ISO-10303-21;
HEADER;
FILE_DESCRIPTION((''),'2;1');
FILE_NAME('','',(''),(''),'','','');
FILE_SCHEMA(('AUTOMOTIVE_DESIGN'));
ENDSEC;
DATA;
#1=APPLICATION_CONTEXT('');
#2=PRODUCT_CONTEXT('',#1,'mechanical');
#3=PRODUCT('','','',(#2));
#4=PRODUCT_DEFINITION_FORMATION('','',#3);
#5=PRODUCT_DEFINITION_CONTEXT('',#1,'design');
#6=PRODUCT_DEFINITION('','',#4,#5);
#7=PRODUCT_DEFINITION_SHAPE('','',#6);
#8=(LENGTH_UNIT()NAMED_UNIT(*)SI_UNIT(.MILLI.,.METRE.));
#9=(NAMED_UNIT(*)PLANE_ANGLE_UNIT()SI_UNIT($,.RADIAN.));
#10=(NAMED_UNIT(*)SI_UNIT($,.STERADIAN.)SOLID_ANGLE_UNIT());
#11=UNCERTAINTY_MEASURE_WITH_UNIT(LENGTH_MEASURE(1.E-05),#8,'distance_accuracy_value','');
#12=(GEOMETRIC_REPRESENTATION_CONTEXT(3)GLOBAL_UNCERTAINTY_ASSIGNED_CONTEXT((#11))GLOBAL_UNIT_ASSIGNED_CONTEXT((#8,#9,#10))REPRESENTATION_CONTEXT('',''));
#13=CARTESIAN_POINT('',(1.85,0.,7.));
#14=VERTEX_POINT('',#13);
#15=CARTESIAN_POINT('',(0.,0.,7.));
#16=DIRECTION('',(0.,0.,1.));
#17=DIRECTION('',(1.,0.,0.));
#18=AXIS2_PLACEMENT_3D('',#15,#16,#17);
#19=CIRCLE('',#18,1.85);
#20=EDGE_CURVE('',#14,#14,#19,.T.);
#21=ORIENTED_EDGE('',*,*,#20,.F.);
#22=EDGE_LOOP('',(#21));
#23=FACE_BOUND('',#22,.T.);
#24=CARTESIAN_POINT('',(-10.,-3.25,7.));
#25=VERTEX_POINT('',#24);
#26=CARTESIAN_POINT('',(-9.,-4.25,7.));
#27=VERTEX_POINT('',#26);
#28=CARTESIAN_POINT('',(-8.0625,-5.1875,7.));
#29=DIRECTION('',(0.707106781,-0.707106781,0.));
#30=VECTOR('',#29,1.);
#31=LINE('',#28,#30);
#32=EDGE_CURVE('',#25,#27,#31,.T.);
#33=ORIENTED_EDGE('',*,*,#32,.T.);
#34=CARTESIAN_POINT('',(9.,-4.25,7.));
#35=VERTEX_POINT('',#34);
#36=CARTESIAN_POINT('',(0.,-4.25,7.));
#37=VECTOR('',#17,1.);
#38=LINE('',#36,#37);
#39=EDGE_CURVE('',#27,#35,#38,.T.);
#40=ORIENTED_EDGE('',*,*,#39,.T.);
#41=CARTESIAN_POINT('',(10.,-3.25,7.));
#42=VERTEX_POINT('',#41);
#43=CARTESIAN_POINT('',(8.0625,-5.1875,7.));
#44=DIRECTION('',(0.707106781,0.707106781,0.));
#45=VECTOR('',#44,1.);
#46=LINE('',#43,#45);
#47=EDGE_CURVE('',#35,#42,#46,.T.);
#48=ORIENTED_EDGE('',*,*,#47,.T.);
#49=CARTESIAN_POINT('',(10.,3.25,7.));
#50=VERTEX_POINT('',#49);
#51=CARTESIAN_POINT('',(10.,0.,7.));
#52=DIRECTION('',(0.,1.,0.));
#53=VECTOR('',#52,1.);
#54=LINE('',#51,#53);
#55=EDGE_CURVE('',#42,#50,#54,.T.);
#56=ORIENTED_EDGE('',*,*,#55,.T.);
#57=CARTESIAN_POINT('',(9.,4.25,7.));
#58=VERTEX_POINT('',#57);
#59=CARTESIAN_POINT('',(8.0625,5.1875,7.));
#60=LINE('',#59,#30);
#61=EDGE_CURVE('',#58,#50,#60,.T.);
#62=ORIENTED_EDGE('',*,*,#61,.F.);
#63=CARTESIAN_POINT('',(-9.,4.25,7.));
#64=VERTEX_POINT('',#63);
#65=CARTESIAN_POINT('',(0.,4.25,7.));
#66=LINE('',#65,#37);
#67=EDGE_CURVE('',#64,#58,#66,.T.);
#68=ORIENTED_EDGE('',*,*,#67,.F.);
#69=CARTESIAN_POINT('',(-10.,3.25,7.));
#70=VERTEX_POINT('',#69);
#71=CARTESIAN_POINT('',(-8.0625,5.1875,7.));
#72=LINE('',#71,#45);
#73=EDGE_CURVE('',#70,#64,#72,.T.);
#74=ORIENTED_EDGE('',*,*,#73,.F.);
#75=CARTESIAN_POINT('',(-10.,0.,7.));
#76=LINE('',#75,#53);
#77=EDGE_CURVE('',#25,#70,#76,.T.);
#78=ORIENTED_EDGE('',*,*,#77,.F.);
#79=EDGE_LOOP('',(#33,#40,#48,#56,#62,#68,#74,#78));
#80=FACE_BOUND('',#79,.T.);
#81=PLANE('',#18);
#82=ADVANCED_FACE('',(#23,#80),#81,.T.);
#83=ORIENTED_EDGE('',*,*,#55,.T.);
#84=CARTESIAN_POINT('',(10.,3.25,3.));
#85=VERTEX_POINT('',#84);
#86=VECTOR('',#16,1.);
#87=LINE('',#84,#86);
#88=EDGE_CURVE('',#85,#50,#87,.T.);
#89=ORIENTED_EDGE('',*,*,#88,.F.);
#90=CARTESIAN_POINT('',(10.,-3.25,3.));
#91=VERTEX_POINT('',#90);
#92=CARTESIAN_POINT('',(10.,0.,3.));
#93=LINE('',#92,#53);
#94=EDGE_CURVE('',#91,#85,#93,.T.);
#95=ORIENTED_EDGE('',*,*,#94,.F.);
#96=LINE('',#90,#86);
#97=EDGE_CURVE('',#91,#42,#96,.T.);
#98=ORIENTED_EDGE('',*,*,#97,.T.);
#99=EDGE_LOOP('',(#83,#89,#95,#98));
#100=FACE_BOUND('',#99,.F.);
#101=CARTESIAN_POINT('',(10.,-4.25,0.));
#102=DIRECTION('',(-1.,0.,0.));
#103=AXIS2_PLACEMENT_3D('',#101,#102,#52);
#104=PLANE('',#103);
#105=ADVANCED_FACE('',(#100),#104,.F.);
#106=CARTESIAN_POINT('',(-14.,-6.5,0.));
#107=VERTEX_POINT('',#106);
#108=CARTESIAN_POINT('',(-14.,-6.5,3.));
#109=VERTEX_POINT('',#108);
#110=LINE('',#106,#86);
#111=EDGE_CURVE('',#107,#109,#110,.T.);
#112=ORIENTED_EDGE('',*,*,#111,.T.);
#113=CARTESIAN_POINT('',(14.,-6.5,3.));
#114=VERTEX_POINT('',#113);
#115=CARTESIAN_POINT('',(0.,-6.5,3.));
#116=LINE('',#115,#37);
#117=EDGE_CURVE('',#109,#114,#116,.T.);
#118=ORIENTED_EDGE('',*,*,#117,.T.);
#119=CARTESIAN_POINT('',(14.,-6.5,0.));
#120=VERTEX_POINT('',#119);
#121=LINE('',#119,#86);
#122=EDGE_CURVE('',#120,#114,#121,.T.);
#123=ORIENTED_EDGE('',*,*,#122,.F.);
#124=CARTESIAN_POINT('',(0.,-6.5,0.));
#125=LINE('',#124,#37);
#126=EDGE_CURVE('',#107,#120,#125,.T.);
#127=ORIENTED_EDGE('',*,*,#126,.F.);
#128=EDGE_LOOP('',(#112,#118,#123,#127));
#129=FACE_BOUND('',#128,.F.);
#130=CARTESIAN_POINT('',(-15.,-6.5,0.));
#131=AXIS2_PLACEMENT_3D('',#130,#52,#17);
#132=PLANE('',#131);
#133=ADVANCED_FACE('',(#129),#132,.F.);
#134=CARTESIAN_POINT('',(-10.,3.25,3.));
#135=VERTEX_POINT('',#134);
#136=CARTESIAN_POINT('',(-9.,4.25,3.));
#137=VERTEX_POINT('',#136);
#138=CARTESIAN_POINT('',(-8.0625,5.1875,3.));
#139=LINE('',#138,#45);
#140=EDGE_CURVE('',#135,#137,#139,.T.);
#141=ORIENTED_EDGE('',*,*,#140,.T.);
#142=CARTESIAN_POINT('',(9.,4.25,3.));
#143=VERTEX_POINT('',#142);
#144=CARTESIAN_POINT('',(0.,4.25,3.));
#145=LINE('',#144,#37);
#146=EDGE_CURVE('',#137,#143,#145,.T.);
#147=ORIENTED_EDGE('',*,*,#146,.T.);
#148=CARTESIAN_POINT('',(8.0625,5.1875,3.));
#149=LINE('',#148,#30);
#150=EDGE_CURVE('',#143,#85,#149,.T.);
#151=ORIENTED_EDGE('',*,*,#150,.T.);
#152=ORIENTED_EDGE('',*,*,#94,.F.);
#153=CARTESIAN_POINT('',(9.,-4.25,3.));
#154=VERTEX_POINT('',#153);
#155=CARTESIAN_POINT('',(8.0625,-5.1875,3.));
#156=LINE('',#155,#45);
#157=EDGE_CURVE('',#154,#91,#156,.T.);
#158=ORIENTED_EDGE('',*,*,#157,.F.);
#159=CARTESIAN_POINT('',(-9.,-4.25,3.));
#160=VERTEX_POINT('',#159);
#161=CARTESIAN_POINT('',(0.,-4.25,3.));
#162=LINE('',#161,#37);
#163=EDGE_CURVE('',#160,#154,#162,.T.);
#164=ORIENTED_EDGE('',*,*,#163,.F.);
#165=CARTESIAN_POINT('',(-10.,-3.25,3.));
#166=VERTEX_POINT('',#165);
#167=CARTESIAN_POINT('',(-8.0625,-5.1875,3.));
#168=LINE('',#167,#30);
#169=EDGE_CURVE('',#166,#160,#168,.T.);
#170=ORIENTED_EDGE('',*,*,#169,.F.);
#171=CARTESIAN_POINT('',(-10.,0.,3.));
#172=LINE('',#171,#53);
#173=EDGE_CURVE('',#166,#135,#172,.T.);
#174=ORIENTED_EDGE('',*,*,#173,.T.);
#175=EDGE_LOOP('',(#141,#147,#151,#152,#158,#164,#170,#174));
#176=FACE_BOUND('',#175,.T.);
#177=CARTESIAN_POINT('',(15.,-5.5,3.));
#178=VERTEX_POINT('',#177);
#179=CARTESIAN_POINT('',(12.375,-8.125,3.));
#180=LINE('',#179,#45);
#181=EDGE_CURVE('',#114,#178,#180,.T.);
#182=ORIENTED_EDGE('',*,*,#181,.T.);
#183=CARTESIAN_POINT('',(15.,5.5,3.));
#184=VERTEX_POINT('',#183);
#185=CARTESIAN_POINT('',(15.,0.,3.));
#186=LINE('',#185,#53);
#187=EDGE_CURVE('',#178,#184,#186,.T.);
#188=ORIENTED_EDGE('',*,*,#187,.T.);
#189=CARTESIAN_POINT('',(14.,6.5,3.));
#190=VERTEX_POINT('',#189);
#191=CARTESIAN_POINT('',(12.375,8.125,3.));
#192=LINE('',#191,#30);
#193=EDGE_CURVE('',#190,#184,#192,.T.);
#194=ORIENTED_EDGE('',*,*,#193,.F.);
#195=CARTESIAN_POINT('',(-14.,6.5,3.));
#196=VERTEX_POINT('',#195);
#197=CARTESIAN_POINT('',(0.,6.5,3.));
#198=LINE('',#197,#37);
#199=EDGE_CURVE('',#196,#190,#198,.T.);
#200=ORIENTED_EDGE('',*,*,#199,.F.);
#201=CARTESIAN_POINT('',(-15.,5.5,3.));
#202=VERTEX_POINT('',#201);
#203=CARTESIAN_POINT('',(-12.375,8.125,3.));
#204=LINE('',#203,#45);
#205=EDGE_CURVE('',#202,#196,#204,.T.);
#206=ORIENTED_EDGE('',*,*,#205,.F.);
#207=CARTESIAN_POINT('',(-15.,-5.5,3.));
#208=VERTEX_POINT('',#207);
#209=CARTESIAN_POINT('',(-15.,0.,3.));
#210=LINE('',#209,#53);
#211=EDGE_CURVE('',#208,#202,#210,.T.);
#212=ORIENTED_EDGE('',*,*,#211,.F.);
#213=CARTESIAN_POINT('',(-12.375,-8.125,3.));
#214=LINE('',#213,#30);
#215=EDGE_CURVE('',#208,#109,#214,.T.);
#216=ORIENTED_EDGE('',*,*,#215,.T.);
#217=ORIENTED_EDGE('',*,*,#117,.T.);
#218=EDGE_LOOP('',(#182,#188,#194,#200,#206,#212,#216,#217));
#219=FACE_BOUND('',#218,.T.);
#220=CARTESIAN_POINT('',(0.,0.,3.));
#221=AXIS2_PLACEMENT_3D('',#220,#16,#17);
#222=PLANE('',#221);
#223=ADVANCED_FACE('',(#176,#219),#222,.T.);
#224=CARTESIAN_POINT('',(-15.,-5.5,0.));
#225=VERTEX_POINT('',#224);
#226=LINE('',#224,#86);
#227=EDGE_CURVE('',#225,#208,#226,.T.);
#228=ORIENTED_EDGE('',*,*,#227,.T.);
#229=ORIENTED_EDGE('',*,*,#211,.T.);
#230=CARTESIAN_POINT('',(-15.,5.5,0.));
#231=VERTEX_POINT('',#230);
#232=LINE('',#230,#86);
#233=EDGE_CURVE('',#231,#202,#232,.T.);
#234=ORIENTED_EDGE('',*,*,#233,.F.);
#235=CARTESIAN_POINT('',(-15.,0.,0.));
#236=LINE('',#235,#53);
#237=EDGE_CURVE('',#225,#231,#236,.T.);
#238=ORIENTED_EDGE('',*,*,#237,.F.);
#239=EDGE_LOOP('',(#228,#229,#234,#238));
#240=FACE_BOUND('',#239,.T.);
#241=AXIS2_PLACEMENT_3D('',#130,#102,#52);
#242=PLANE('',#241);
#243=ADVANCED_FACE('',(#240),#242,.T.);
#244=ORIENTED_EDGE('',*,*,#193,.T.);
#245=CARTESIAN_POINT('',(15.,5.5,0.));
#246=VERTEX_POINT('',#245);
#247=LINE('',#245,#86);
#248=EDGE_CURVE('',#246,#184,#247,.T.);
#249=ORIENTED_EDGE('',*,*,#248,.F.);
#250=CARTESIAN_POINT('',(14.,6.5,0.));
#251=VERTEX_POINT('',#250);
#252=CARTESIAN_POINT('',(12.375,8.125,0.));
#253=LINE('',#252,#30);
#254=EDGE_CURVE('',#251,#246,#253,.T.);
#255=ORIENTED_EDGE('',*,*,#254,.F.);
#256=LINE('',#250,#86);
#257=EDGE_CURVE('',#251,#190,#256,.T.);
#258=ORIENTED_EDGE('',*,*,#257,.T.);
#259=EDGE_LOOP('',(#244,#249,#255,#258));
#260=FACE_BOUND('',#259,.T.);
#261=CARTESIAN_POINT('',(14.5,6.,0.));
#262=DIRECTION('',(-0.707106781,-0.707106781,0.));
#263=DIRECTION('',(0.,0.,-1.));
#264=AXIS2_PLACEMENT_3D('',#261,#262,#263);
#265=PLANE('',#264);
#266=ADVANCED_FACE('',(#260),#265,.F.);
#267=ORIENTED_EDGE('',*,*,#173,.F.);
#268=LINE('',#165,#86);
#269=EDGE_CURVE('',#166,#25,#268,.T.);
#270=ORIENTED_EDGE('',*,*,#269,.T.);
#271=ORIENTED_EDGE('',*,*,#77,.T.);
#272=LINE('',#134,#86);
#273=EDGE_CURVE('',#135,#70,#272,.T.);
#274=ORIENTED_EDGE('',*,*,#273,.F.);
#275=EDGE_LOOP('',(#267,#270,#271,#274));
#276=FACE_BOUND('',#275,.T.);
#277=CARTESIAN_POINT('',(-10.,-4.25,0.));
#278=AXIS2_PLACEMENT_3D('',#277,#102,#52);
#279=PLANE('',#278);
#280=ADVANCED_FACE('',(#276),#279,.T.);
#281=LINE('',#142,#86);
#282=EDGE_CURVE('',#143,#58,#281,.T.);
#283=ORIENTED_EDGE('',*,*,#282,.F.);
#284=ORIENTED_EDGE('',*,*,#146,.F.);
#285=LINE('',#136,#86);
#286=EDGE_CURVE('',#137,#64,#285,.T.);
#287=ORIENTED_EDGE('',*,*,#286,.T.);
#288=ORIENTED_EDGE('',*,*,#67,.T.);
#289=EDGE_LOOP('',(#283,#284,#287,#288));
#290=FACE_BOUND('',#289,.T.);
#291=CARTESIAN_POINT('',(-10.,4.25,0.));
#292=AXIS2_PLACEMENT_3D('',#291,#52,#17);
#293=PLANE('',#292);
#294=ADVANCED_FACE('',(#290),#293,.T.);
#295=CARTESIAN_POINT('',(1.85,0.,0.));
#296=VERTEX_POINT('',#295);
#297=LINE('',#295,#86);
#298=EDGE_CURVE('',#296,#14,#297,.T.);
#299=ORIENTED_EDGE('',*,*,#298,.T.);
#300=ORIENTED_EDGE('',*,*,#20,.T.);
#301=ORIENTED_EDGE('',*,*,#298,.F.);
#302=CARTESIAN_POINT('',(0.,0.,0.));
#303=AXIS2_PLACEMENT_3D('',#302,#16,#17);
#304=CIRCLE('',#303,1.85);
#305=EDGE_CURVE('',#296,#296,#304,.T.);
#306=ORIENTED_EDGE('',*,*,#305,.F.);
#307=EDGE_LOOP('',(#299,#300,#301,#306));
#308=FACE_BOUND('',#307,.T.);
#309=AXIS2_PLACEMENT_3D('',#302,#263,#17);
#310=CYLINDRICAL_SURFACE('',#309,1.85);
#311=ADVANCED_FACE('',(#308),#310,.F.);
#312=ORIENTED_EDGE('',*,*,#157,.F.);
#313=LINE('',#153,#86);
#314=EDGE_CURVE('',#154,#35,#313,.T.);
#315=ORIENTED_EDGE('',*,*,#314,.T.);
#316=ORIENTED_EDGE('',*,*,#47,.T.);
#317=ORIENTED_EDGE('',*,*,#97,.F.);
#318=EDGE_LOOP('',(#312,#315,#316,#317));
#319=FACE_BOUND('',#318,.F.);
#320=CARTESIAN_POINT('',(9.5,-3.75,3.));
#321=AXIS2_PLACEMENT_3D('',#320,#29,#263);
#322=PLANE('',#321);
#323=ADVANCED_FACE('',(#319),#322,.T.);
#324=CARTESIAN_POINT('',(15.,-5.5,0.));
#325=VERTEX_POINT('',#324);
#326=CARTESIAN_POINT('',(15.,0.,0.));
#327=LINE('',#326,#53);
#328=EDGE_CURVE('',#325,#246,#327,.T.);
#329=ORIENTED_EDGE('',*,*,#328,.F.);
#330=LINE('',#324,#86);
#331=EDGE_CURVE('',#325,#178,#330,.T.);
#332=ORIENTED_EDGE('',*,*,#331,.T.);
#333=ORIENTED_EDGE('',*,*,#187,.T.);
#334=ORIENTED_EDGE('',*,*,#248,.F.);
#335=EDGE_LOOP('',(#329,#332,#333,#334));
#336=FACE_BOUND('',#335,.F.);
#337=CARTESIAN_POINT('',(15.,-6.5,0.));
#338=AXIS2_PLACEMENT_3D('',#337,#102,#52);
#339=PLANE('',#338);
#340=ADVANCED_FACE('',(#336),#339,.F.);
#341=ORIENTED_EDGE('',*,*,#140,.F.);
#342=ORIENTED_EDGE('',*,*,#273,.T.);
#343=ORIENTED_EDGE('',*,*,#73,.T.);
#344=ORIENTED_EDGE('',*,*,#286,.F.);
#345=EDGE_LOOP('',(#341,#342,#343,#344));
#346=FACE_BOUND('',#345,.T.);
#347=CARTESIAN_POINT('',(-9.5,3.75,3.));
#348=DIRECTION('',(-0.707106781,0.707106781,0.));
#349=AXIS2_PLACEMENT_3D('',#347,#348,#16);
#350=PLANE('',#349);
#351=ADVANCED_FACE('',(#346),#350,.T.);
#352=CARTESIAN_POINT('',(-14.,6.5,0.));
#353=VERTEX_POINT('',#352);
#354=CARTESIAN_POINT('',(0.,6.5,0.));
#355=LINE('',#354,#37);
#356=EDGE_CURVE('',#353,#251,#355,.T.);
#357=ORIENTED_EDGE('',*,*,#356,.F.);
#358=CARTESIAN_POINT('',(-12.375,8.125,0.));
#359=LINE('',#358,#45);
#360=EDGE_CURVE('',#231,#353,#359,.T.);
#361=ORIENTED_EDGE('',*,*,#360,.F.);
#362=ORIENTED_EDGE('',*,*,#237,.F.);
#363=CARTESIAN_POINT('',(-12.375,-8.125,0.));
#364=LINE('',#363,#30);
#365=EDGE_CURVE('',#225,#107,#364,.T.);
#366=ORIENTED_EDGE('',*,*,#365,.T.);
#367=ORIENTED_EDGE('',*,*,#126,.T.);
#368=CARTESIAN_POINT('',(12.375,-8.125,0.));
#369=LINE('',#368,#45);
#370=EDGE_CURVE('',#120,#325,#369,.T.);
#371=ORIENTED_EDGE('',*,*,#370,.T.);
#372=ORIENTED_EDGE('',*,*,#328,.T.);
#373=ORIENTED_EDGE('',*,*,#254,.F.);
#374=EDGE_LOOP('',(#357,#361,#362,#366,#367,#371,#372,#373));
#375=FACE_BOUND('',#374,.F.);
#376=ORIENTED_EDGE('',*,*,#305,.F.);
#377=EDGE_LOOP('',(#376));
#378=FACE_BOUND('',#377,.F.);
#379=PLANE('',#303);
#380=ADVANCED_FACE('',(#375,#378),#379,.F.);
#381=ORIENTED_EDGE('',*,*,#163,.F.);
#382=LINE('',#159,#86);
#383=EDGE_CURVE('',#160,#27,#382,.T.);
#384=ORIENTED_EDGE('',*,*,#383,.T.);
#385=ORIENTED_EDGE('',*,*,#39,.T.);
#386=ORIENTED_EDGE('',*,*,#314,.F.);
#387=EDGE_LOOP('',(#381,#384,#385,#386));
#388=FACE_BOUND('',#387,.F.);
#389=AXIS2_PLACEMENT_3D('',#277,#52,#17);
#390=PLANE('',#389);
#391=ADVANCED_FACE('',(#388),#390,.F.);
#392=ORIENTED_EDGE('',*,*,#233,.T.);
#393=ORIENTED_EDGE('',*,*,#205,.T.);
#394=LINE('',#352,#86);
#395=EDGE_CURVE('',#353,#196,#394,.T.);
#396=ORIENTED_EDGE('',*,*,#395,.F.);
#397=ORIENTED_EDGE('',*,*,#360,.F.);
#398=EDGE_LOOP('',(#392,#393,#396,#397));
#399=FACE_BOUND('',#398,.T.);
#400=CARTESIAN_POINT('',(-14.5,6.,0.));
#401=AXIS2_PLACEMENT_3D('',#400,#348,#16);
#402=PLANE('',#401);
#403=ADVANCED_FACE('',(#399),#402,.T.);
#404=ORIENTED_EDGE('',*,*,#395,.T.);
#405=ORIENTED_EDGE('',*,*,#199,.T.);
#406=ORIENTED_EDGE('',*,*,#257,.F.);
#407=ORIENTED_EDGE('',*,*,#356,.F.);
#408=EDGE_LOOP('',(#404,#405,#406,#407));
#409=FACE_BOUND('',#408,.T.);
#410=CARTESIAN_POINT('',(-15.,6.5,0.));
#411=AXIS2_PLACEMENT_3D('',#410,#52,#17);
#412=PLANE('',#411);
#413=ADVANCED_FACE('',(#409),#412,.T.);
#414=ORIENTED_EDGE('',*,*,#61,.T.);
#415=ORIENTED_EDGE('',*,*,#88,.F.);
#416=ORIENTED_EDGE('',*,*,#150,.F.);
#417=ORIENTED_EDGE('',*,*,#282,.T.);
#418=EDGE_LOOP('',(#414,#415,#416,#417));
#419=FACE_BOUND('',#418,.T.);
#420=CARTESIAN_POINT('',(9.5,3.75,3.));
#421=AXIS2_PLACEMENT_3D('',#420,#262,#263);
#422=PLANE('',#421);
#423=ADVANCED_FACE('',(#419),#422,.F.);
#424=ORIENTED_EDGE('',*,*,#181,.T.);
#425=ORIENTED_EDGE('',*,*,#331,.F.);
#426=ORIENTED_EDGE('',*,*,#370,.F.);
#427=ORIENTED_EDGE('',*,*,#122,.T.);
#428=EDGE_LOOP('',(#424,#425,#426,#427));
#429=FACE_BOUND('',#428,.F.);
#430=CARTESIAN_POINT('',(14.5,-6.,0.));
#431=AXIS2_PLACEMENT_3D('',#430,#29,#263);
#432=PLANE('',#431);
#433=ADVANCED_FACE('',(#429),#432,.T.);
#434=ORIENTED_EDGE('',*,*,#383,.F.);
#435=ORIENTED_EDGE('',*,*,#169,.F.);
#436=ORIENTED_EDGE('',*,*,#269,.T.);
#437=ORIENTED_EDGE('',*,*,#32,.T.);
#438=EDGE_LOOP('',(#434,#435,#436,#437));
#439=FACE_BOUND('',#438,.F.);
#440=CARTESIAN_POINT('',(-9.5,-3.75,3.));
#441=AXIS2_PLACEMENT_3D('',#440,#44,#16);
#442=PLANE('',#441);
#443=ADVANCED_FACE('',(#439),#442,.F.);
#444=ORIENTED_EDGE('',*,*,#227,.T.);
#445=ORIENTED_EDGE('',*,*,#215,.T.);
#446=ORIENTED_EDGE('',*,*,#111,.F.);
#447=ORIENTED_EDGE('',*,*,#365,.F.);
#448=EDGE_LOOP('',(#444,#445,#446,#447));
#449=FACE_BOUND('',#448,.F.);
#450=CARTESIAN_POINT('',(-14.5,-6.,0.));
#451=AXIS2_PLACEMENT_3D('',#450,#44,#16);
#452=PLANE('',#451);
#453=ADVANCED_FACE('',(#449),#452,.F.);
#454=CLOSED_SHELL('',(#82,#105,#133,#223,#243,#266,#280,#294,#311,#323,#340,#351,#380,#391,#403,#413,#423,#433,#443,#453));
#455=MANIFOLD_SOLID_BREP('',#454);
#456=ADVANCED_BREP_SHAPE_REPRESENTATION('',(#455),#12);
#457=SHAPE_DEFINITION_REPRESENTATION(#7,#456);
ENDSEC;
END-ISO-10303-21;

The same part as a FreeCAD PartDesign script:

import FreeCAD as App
import Part
import Sketcher

V = App.Vector
Q = App.Units.Quantity


def edges_at(feature, points):
    """Names of the edges that pass closest to the given points."""
    edges = feature.Shape.Edges
    near = lambda p: min(range(len(edges)), key=lambda i: edges[i].distToShape(Part.Vertex(*p))[0])
    return sorted({f"Edge{near(p) + 1}" for p in points})


def add_polygon(sketch, points):
    """Adds a closed chain of lines whose ends are joined by coincident constraints."""
    first, n = sketch.GeometryCount, len(points)
    for a, b in zip(points, points[1:] + points[:1]):
        sketch.addGeometry(Part.LineSegment(App.Vector(*a, 0), App.Vector(*b, 0)), False)
    for i in range(n):
        sketch.addConstraint(Sketcher.Constraint("Coincident", first + i, 2, first + (i + 1) % n, 1))

doc = App.newDocument("Part")
params = doc.addObject("Spreadsheet::Sheet", "Params")
for row, (alias, value) in enumerate([
    ("sketch1_width", "30 mm"),
    ("sketch1_width2", "20 mm"),
    ("sketch1_height", "13 mm"),
    ("sketch1_height2", "8.5 mm"),
    ("pad1_length", "3 mm"),
    ("sketch2_diameter", "3.7 mm"),
    ("sketch2_width", "20 mm"),
    ("sketch2_height", "8.5 mm"),
    ("pad2_length", "7 mm"),
    ("chamfer_size", "1 mm"),
], start=1):
    params.set(f"A{row}", alias)
    params.set(f"B{row}", "=" + value)
    params.setAlias(f"B{row}", alias)

body = doc.addObject("PartDesign::Body", "Body")

# Sketch on XY plane
sketch1 = doc.addObject("Sketcher::SketchObject", "Sketch")
body.addObject(sketch1)
sketch1.AttachmentSupport = (doc.XY_Plane, [""])
sketch1.MapMode = "FlatFace"
add_polygon(sketch1, [(-15, 6), (-15, -6), (15, -6), (15, 6)])  # lines 0-3
add_polygon(sketch1, [(10, -4), (-10, -4), (-10, 4), (10, 4)])  # lines 4-7
sketch1.addConstraint([
    Sketcher.Constraint("Vertical", 0),
    Sketcher.Constraint("Horizontal", 1),
    Sketcher.Constraint("Vertical", 2),
    Sketcher.Constraint("Horizontal", 3),
    Sketcher.Constraint("Horizontal", 4),
    Sketcher.Constraint("Vertical", 5),
    Sketcher.Constraint("Horizontal", 6),
    Sketcher.Constraint("Vertical", 7),
    Sketcher.Constraint("Symmetric", 0, 2, 2, 2, -1, 1),
    Sketcher.Constraint("Symmetric", 4, 2, 6, 2, -1, 1),
    Sketcher.Constraint("DistanceX", 1, 1, 1, 2, Q("30 mm")),
    Sketcher.Constraint("DistanceX", 4, 2, 4, 1, Q("20 mm")),
    Sketcher.Constraint("DistanceY", 0, 2, 0, 1, Q("13 mm")),
    Sketcher.Constraint("DistanceY", 5, 1, 5, 2, Q("8.5 mm")),
])
sketch1.setExpression("Constraints[18]", "Params.sketch1_width")
sketch1.setExpression("Constraints[19]", "Params.sketch1_width2")
sketch1.setExpression("Constraints[20]", "Params.sketch1_height")
sketch1.setExpression("Constraints[21]", "Params.sketch1_height2")
pad1 = doc.addObject("PartDesign::Pad", "Pad")
body.addObject(pad1)
pad1.Profile = sketch1
pad1.setExpression("Length", "Params.pad1_length")

# Sketch on XY plane
sketch2 = doc.addObject("Sketcher::SketchObject", "Sketch001")
body.addObject(sketch2)
sketch2.AttachmentSupport = (doc.XY_Plane, [""])
sketch2.MapMode = "FlatFace"
add_polygon(sketch2, [(-10, 4.2), (-10, -4.2), (10, -4.2), (10, 4.2)])  # lines 0-3
sketch2.addGeometry(Part.Circle(V(0, 0, 0), V(0, 0, 1), 1.9), False)  # 4
sketch2.addConstraint([
    Sketcher.Constraint("Vertical", 0),
    Sketcher.Constraint("Horizontal", 1),
    Sketcher.Constraint("Vertical", 2),
    Sketcher.Constraint("Horizontal", 3),
    Sketcher.Constraint("Coincident", 4, 3, -1, 1),
    Sketcher.Constraint("Symmetric", 0, 2, 2, 2, -1, 1),
    Sketcher.Constraint("Diameter", 4, Q("3.7 mm")),
    Sketcher.Constraint("DistanceX", 1, 1, 1, 2, Q("20 mm")),
    Sketcher.Constraint("DistanceY", 0, 2, 0, 1, Q("8.5 mm")),
])
sketch2.setExpression("Constraints[10]", "Params.sketch2_diameter")
sketch2.setExpression("Constraints[11]", "Params.sketch2_width")
sketch2.setExpression("Constraints[12]", "Params.sketch2_height")
pad2 = doc.addObject("PartDesign::Pad", "Pad001")
body.addObject(pad2)
pad2.Profile = sketch2
pad2.setExpression("Length", "Params.pad2_length")
doc.recompute()

chamfer = doc.addObject("PartDesign::Chamfer", "Chamfer")
body.addObject(chamfer)
chamfer.Base = (pad2, edges_at(pad2, [
    (-10, -4.25, 5),
    (10, -4.25, 5),
    (10, 4.25, 5),
    (-10, 4.25, 5),
    (-15, 6.5, 1.5),
    (15, 6.5, 1.5),
    (15, -6.5, 1.5),
    (-15, -6.5, 1.5),
]))
chamfer.setExpression("Size", "Params.chamfer_size")

doc.recompute()
